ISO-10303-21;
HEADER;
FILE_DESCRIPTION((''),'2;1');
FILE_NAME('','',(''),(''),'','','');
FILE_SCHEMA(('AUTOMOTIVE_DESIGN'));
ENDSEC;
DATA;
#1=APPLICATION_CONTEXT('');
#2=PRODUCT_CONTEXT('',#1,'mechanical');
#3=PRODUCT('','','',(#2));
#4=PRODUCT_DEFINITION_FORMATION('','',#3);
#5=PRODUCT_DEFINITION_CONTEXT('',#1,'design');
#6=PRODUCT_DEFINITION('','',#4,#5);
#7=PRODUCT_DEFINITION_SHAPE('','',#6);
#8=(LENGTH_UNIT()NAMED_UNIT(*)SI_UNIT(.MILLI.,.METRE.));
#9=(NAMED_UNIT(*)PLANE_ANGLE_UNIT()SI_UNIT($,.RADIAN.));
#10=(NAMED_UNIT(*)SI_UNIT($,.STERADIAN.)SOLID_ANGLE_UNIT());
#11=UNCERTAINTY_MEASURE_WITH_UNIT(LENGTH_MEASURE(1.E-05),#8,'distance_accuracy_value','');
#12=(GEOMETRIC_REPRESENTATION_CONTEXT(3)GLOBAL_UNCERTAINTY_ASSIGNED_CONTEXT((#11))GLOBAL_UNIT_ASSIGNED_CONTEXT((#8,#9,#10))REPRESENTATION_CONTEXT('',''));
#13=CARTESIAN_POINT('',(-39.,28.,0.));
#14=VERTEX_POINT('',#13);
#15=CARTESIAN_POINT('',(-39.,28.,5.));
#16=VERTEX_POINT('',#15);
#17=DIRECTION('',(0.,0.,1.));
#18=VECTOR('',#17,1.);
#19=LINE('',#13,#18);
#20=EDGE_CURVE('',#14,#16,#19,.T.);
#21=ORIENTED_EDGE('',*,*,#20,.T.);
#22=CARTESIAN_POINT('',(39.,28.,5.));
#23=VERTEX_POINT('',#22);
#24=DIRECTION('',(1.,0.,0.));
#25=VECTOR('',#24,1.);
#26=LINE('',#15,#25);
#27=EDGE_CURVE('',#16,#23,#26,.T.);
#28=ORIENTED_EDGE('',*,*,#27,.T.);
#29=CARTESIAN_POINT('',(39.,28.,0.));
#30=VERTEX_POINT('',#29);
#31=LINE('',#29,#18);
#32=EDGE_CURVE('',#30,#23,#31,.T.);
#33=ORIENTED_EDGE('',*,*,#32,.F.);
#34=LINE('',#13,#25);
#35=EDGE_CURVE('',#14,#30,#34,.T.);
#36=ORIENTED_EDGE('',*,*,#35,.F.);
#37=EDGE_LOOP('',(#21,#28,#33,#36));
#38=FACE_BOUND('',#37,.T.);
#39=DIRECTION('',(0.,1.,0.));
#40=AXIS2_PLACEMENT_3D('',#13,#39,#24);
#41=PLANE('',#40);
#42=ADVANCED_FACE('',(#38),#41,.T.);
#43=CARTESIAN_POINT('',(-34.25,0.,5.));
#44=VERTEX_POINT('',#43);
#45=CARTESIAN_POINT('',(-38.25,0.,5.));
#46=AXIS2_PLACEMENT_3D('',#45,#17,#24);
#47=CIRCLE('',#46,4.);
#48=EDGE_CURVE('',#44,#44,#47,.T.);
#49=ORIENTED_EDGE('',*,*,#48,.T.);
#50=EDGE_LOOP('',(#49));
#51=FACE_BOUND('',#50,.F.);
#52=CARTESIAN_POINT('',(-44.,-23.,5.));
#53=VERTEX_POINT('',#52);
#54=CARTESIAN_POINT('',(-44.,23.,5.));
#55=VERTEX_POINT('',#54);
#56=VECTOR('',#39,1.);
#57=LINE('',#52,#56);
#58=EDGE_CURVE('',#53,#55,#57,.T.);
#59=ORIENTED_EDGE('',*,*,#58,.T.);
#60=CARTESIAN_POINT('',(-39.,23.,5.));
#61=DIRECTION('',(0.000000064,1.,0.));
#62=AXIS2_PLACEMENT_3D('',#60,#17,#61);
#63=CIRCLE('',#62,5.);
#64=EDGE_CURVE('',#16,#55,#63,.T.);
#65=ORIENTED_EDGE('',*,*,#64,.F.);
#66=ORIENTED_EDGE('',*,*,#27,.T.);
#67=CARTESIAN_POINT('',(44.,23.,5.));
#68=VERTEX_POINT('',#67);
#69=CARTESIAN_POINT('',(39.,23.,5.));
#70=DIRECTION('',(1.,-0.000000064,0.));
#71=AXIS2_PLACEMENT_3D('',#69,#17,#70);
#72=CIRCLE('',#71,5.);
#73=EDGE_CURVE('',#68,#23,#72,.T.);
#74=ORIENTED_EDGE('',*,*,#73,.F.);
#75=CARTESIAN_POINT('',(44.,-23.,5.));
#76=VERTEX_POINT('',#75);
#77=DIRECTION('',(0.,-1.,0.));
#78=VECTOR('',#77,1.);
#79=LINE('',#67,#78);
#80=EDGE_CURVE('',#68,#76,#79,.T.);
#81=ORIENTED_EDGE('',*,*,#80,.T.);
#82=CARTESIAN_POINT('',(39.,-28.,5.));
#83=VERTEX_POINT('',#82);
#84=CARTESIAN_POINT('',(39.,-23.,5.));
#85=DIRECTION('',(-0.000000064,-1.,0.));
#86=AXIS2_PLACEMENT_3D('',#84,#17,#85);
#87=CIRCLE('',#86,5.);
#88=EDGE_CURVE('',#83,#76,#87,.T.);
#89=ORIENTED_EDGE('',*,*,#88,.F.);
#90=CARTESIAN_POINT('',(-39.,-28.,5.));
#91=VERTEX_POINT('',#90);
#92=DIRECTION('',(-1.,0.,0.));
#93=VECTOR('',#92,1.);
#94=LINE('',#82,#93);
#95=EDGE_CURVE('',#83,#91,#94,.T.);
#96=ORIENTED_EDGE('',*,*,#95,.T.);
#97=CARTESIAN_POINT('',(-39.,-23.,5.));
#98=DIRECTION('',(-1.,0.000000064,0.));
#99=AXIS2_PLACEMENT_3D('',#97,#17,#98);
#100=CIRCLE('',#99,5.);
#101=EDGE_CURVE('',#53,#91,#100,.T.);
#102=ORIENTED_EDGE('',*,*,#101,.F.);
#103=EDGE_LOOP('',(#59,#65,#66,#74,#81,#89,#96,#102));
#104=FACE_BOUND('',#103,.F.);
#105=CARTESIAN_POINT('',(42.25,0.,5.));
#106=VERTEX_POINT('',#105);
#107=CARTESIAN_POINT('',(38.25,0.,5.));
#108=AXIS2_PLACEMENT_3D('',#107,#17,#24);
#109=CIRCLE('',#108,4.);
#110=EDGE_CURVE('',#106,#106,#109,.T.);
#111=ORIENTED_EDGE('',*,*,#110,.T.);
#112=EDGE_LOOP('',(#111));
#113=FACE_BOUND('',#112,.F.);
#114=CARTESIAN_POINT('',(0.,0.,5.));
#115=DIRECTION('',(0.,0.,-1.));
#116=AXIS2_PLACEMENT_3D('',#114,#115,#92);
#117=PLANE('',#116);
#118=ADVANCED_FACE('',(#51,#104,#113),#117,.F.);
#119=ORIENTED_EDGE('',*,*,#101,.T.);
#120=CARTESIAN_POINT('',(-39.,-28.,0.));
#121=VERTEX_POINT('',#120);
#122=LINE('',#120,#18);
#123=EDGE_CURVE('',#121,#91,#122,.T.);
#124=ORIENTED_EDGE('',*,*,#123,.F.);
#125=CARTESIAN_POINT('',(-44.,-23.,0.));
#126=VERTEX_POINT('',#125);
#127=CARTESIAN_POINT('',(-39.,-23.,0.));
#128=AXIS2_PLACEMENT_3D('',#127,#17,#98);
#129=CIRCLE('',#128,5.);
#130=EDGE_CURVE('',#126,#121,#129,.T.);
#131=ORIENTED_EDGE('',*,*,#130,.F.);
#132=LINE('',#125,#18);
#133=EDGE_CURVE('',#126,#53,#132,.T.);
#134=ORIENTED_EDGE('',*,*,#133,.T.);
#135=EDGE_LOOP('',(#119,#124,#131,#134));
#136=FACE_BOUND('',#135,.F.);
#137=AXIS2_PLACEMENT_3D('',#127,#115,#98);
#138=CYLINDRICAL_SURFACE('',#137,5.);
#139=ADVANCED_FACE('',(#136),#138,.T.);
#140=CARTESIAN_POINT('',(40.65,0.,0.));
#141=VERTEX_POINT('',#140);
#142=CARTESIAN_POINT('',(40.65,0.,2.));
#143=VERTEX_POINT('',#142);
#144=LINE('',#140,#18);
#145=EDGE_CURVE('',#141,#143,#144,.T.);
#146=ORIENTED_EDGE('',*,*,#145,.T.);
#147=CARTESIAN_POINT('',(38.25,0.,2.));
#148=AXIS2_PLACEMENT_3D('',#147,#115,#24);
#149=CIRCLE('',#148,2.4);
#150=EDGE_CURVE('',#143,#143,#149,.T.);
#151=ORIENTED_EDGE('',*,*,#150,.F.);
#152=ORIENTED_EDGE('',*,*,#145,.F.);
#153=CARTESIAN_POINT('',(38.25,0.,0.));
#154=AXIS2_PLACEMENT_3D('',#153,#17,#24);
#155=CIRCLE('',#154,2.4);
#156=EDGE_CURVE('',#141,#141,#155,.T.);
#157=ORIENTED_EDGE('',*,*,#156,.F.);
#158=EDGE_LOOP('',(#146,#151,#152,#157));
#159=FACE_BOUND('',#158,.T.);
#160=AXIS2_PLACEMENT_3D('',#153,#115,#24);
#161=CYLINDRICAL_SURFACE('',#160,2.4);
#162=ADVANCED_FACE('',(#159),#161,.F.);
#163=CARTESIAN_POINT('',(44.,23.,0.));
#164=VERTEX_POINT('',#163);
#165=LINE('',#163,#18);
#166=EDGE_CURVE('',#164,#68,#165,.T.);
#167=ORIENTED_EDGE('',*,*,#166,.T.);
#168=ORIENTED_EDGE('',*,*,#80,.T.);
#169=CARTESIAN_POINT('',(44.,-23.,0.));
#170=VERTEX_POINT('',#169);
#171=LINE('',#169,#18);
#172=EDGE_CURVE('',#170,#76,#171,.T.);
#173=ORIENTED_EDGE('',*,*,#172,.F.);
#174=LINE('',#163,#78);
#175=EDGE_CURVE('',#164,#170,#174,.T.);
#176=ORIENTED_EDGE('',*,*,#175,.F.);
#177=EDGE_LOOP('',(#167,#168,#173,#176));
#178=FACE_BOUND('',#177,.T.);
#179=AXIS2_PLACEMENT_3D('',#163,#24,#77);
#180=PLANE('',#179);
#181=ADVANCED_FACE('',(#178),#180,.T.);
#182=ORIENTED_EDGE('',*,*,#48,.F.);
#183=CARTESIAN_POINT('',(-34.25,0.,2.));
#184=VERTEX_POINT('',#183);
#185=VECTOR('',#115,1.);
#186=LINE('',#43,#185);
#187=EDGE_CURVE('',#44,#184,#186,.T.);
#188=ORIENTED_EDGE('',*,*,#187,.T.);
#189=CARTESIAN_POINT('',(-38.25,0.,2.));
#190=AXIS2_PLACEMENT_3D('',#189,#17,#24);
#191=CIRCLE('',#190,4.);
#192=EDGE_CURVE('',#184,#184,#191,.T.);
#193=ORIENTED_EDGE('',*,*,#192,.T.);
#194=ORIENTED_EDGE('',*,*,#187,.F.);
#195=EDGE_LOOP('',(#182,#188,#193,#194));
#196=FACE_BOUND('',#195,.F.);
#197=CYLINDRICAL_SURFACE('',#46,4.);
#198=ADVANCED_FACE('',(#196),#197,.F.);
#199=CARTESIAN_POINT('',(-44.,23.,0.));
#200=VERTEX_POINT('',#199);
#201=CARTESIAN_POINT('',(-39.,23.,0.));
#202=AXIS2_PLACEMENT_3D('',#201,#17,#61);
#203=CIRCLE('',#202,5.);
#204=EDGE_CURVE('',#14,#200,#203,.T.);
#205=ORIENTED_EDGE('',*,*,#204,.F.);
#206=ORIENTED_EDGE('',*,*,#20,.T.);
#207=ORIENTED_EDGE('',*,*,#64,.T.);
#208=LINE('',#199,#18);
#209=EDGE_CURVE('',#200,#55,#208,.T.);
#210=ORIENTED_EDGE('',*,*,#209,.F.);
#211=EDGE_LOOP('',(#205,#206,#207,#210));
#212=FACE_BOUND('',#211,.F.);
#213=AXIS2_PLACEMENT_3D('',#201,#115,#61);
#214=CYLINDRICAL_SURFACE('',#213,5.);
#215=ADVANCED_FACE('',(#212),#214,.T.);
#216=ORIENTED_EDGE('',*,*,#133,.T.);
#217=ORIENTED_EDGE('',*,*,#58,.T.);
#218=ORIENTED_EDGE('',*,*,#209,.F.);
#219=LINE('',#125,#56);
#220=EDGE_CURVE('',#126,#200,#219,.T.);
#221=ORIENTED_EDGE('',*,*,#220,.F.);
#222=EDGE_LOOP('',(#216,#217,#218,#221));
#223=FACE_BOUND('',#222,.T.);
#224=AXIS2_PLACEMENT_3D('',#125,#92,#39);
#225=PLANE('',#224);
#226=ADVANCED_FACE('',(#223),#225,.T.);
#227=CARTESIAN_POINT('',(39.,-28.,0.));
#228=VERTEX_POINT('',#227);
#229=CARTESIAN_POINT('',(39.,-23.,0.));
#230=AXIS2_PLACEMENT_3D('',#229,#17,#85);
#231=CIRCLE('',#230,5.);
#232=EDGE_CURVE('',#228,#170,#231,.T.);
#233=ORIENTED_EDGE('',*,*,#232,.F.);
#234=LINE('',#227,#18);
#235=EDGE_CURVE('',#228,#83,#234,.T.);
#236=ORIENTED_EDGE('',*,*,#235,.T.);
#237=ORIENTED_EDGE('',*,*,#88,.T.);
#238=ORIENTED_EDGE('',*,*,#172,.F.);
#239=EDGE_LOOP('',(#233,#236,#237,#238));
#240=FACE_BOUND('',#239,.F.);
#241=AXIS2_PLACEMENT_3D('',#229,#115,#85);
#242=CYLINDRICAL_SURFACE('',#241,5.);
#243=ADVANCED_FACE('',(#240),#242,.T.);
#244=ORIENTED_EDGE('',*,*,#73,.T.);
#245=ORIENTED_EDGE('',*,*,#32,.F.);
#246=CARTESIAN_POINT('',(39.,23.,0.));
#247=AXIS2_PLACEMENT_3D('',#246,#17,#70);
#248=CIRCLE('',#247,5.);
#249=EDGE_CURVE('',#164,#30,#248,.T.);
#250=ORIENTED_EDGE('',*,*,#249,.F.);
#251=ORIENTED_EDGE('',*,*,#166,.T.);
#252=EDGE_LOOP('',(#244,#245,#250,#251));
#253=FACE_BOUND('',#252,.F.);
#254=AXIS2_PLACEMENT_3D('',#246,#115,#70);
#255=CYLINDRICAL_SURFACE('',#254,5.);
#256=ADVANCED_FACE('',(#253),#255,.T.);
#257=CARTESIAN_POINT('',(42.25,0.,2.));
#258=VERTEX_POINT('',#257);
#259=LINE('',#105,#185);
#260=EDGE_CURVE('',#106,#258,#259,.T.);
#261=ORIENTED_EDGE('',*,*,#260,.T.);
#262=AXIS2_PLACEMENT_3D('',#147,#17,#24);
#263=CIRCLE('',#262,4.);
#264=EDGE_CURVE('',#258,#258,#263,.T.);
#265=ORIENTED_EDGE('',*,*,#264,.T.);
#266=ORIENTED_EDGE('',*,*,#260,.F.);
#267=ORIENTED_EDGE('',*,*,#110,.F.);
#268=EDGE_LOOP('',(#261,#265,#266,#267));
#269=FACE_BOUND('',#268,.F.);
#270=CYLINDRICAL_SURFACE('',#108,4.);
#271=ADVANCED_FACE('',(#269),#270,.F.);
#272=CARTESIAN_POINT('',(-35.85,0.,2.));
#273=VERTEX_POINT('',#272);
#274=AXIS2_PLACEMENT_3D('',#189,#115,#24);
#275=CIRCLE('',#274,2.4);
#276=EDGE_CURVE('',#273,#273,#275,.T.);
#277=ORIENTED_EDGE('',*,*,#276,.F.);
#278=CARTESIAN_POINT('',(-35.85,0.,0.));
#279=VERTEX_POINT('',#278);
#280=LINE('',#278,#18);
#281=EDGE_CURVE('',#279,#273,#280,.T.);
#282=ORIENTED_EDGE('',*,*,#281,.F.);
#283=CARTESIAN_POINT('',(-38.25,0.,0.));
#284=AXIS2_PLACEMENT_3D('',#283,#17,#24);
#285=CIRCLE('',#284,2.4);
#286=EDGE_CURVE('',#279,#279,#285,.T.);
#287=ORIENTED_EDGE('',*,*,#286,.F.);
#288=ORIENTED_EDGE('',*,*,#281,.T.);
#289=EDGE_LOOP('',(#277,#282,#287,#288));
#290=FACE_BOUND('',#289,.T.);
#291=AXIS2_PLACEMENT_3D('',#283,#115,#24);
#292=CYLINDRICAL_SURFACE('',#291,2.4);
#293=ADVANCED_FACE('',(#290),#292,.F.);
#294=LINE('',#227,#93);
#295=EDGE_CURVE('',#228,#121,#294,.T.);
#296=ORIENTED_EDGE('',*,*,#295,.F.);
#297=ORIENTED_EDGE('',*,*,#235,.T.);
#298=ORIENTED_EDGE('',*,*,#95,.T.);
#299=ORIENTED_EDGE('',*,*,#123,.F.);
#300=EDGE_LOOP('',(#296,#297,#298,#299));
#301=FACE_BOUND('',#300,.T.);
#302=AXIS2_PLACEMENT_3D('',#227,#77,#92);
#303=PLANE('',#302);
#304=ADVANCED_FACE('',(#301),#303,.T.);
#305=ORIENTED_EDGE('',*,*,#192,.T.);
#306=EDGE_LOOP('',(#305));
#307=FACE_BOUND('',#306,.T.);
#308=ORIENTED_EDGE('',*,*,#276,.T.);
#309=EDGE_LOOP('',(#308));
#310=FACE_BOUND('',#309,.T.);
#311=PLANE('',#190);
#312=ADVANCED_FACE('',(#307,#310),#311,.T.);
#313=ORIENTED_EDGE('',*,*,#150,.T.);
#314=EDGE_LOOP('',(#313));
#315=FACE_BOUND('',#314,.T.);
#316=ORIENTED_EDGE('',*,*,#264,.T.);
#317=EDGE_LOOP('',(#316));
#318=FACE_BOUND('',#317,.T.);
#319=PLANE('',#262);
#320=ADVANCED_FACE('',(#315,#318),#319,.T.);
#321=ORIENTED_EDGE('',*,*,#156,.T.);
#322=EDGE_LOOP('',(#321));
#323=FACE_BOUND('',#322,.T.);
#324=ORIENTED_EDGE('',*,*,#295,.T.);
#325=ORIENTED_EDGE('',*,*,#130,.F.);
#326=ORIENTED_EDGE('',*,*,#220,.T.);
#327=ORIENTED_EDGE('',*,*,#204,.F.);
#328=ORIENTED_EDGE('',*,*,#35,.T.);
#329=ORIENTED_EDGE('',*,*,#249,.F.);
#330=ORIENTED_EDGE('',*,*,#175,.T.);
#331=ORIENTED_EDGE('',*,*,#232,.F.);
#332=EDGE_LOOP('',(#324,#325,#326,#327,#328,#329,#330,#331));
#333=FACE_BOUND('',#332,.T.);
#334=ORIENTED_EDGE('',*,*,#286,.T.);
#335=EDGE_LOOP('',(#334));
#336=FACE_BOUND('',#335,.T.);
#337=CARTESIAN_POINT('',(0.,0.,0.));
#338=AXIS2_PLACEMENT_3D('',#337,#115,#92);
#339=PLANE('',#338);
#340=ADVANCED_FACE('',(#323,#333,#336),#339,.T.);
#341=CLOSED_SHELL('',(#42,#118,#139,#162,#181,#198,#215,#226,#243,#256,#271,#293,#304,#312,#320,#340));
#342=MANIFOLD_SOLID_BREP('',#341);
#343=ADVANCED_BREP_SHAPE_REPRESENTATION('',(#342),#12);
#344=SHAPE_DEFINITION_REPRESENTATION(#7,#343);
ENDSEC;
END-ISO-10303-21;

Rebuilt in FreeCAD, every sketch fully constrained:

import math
import FreeCAD as App
import Part
import Sketcher

doc = App.newDocument("Part")
body = doc.addObject("PartDesign::Body", "Body")

sketch1 = body.newObject("Sketcher::SketchObject", "Sketch")
sketch1.AttachmentSupport = (doc.getObject("XY_Plane"), [""])
sketch1.MapMode = "FlatFace"
sketch1.addGeometry([
    Part.LineSegment(App.Vector(39, 28, 0), App.Vector(-39, 28, 0)),
    Part.ArcOfCircle(Part.Circle(App.Vector(-39, 23, 0), App.Vector(0, 0, 1), 5), math.radians(90), math.radians(180)),
    Part.LineSegment(App.Vector(-44, 23, 0), App.Vector(-44, -23, 0)),
    Part.ArcOfCircle(Part.Circle(App.Vector(-39, -23, 0), App.Vector(0, 0, 1), 5), math.radians(180), math.radians(270)),
    Part.LineSegment(App.Vector(-39, -28, 0), App.Vector(39, -28, 0)),
    Part.ArcOfCircle(Part.Circle(App.Vector(39, -23, 0), App.Vector(0, 0, 1), 5), math.radians(-90), math.radians(0)),
    Part.LineSegment(App.Vector(44, -23, 0), App.Vector(44, 23, 0)),
    Part.ArcOfCircle(Part.Circle(App.Vector(39, 23, 0), App.Vector(0, 0, 1), 5), math.radians(0), math.radians(90)),
    Part.Circle(App.Vector(38.2, 0, 0), App.Vector(0, 0, 1), 2.4),
    Part.Circle(App.Vector(-38.2, 0, 0), App.Vector(0, 0, 1), 2.4),
], False)
sketch1.addConstraint([
    Sketcher.Constraint("Tangent", 0, 2, 1, 1),
    Sketcher.Constraint("Tangent", 1, 2, 2, 1),
    Sketcher.Constraint("Tangent", 2, 2, 3, 1),
    Sketcher.Constraint("Tangent", 3, 2, 4, 1),
    Sketcher.Constraint("Tangent", 4, 2, 5, 1),
    Sketcher.Constraint("Tangent", 5, 2, 6, 1),
    Sketcher.Constraint("Tangent", 6, 2, 7, 1),
    Sketcher.Constraint("Tangent", 7, 2, 0, 1),
    Sketcher.Constraint("Horizontal", 0),
    Sketcher.Constraint("Vertical", 2),
    Sketcher.Constraint("Horizontal", 4),
    Sketcher.Constraint("Vertical", 6),
    Sketcher.Constraint("Equal", 1, 3),
    Sketcher.Constraint("Equal", 3, 5),
    Sketcher.Constraint("Equal", 5, 7),
    Sketcher.Constraint("Equal", 8, 9),
    Sketcher.Constraint("Symmetric", 1, 3, 5, 3, -1, 1),
    Sketcher.Constraint("Symmetric", 8, 3, 9, 3, -1, 1),
    Sketcher.Constraint("PointOnObject", 8, 3, -1),
    Sketcher.Constraint("Radius", 1, 5.0),
    Sketcher.Constraint("Diameter", 8, 4.8),
    Sketcher.Constraint("DistanceX", 0, 2, 0, 1, 78.0),
    Sketcher.Constraint("DistanceY", 2, 2, 2, 1, 46.0),
    Sketcher.Constraint("DistanceX", 9, 3, 8, 3, 76.5),
])
pad1 = body.newObject("PartDesign::Pad", "Pad")
pad1.Profile = sketch1
pad1.Length = 5

sketch2 = body.newObject("Sketcher::SketchObject", "Sketch001")
sketch2.AttachmentSupport = (doc.getObject("XY_Plane"), [""])
sketch2.MapMode = "FlatFace"
sketch2.AttachmentOffset = App.Placement(App.Vector(0, 0, 5), App.Rotation())
sketch2.addGeometry([
    Part.Circle(App.Vector(-38.2, 0, 0), App.Vector(0, 0, 1), 4),
    Part.Circle(App.Vector(38.2, 0, 0), App.Vector(0, 0, 1), 4),
], False)
sketch2.addConstraint([
    Sketcher.Constraint("Equal", 0, 1),
    Sketcher.Constraint("Symmetric", 0, 3, 1, 3, -1, 1),
    Sketcher.Constraint("PointOnObject", 0, 3, -1),
    Sketcher.Constraint("Diameter", 0, 8.0),
    Sketcher.Constraint("DistanceX", 0, 3, 1, 3, 76.5),
])
pocket1 = body.newObject("PartDesign::Pocket", "Pocket")
pocket1.Profile = sketch2
pocket1.Length = 3

doc.recompute()
